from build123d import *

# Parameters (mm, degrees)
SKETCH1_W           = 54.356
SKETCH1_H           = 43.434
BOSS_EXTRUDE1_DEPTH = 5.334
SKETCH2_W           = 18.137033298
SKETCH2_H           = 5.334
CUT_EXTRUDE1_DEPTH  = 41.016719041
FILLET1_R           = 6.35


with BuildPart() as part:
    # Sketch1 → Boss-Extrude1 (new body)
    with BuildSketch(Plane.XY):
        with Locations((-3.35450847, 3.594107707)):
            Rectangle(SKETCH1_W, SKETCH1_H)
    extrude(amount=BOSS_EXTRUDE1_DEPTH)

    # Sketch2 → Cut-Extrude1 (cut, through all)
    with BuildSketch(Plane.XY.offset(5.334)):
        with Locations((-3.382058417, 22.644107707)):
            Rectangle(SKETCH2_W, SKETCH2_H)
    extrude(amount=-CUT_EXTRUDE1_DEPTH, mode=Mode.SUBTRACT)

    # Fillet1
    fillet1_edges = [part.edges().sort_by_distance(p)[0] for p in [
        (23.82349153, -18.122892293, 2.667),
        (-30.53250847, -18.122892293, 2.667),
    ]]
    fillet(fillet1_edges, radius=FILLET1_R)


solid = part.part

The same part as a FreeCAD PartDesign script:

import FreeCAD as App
import Part
import Sketcher
from FreeCAD import Vector
Q = App.Units.Quantity


def edges_at(feature, points):
    """Names of the edges that pass closest to the given points."""
    edges = feature.Shape.Edges
    near = lambda p: min(range(len(edges)), key=lambda i: edges[i].distToShape(Part.Vertex(*p))[0])
    return sorted({f"Edge{near(p) + 1}" for p in points})


def add_polygon(sketch, points):
    """Adds a closed chain of lines whose ends are joined by coincident constraints."""
    first, n = sketch.GeometryCount, len(points)
    for a, b in zip(points, points[1:] + points[:1]):
        sketch.addGeometry(Part.LineSegment(App.Vector(*a, 0), App.Vector(*b, 0)), False)
    for i in range(n):
        sketch.addConstraint(Sketcher.Constraint("Coincident", first + i, 2, first + (i + 1) % n, 1))

doc = App.newDocument("Part")
body = doc.addObject("PartDesign::Body", "Body")

# Sketch on XY plane
sketch1 = doc.addObject("Sketcher::SketchObject", "Sketch")
body.addObject(sketch1)
sketch1.AttachmentSupport = (doc.XY_Plane, [""])
sketch1.MapMode = "FlatFace"
add_polygon(sketch1, [(-31, 25), (-31, -18), (24, -18), (24, 25)])  # lines 0-3
sketch1.addConstraint([
    Sketcher.Constraint("Vertical", 0),
    Sketcher.Constraint("Horizontal", 1),
    Sketcher.Constraint("Vertical", 2),
    Sketcher.Constraint("Horizontal", 3),
    Sketcher.Constraint("DistanceX", 1, 1, 1, 2, Q("2.14 in")),
    Sketcher.Constraint("DistanceY", 0, 2, 0, 1, Q("1.71 in")),
    Sketcher.Constraint("DistanceX", 0, 2, -1, 1, 30.532508),
    Sketcher.Constraint("DistanceY", 0, 2, -1, 1, 18.122892),
])
pad1 = doc.addObject("PartDesign::Pad", "Pad")
body.addObject(pad1)
pad1.Profile = sketch1
pad1.Length = Q("0.21 in")

# Sketch on XY plane
sketch2 = doc.addObject("Sketcher::SketchObject", "Sketch001")
body.addObject(sketch2)
sketch2.AttachmentSupport = (doc.XY_Plane, [""])
sketch2.MapMode = "FlatFace"
sketch2.AttachmentOffset = App.Placement(Vector(0, 0, 0.21 * 25.4), App.Rotation())
add_polygon(sketch2, [(-12, 25), (-12, 20), (6, 20), (6, 25)])  # lines 0-3
sketch2.addConstraint([
    Sketcher.Constraint("Vertical", 0),
    Sketcher.Constraint("Horizontal", 1),
    Sketcher.Constraint("Vertical", 2),
    Sketcher.Constraint("Horizontal", 3),
    Sketcher.Constraint("DistanceY", 0, 2, 0, 1, Q("0.21 in")),
    Sketcher.Constraint("DistanceX", 1, 1, 1, 2, 18.137033),
    Sketcher.Constraint("DistanceX", -1, 1, 1, 2, 5.686458),
    Sketcher.Constraint("DistanceY", -1, 1, 0, 2, 19.977108),
])
pocket1 = doc.addObject("PartDesign::Pocket", "Pocket")
body.addObject(pocket1)
pocket1.Profile = sketch2
pocket1.Type = "ThroughAll"
doc.recompute()

fillet = doc.addObject("PartDesign::Fillet", "Fillet")
body.addObject(fillet)
fillet.Base = (pocket1, edges_at(pocket1, [(23.823, -18.123, 2.667), (-30.533, -18.123, 2.667)]))
fillet.Radius = Q("0.25 in")

doc.recompute()
